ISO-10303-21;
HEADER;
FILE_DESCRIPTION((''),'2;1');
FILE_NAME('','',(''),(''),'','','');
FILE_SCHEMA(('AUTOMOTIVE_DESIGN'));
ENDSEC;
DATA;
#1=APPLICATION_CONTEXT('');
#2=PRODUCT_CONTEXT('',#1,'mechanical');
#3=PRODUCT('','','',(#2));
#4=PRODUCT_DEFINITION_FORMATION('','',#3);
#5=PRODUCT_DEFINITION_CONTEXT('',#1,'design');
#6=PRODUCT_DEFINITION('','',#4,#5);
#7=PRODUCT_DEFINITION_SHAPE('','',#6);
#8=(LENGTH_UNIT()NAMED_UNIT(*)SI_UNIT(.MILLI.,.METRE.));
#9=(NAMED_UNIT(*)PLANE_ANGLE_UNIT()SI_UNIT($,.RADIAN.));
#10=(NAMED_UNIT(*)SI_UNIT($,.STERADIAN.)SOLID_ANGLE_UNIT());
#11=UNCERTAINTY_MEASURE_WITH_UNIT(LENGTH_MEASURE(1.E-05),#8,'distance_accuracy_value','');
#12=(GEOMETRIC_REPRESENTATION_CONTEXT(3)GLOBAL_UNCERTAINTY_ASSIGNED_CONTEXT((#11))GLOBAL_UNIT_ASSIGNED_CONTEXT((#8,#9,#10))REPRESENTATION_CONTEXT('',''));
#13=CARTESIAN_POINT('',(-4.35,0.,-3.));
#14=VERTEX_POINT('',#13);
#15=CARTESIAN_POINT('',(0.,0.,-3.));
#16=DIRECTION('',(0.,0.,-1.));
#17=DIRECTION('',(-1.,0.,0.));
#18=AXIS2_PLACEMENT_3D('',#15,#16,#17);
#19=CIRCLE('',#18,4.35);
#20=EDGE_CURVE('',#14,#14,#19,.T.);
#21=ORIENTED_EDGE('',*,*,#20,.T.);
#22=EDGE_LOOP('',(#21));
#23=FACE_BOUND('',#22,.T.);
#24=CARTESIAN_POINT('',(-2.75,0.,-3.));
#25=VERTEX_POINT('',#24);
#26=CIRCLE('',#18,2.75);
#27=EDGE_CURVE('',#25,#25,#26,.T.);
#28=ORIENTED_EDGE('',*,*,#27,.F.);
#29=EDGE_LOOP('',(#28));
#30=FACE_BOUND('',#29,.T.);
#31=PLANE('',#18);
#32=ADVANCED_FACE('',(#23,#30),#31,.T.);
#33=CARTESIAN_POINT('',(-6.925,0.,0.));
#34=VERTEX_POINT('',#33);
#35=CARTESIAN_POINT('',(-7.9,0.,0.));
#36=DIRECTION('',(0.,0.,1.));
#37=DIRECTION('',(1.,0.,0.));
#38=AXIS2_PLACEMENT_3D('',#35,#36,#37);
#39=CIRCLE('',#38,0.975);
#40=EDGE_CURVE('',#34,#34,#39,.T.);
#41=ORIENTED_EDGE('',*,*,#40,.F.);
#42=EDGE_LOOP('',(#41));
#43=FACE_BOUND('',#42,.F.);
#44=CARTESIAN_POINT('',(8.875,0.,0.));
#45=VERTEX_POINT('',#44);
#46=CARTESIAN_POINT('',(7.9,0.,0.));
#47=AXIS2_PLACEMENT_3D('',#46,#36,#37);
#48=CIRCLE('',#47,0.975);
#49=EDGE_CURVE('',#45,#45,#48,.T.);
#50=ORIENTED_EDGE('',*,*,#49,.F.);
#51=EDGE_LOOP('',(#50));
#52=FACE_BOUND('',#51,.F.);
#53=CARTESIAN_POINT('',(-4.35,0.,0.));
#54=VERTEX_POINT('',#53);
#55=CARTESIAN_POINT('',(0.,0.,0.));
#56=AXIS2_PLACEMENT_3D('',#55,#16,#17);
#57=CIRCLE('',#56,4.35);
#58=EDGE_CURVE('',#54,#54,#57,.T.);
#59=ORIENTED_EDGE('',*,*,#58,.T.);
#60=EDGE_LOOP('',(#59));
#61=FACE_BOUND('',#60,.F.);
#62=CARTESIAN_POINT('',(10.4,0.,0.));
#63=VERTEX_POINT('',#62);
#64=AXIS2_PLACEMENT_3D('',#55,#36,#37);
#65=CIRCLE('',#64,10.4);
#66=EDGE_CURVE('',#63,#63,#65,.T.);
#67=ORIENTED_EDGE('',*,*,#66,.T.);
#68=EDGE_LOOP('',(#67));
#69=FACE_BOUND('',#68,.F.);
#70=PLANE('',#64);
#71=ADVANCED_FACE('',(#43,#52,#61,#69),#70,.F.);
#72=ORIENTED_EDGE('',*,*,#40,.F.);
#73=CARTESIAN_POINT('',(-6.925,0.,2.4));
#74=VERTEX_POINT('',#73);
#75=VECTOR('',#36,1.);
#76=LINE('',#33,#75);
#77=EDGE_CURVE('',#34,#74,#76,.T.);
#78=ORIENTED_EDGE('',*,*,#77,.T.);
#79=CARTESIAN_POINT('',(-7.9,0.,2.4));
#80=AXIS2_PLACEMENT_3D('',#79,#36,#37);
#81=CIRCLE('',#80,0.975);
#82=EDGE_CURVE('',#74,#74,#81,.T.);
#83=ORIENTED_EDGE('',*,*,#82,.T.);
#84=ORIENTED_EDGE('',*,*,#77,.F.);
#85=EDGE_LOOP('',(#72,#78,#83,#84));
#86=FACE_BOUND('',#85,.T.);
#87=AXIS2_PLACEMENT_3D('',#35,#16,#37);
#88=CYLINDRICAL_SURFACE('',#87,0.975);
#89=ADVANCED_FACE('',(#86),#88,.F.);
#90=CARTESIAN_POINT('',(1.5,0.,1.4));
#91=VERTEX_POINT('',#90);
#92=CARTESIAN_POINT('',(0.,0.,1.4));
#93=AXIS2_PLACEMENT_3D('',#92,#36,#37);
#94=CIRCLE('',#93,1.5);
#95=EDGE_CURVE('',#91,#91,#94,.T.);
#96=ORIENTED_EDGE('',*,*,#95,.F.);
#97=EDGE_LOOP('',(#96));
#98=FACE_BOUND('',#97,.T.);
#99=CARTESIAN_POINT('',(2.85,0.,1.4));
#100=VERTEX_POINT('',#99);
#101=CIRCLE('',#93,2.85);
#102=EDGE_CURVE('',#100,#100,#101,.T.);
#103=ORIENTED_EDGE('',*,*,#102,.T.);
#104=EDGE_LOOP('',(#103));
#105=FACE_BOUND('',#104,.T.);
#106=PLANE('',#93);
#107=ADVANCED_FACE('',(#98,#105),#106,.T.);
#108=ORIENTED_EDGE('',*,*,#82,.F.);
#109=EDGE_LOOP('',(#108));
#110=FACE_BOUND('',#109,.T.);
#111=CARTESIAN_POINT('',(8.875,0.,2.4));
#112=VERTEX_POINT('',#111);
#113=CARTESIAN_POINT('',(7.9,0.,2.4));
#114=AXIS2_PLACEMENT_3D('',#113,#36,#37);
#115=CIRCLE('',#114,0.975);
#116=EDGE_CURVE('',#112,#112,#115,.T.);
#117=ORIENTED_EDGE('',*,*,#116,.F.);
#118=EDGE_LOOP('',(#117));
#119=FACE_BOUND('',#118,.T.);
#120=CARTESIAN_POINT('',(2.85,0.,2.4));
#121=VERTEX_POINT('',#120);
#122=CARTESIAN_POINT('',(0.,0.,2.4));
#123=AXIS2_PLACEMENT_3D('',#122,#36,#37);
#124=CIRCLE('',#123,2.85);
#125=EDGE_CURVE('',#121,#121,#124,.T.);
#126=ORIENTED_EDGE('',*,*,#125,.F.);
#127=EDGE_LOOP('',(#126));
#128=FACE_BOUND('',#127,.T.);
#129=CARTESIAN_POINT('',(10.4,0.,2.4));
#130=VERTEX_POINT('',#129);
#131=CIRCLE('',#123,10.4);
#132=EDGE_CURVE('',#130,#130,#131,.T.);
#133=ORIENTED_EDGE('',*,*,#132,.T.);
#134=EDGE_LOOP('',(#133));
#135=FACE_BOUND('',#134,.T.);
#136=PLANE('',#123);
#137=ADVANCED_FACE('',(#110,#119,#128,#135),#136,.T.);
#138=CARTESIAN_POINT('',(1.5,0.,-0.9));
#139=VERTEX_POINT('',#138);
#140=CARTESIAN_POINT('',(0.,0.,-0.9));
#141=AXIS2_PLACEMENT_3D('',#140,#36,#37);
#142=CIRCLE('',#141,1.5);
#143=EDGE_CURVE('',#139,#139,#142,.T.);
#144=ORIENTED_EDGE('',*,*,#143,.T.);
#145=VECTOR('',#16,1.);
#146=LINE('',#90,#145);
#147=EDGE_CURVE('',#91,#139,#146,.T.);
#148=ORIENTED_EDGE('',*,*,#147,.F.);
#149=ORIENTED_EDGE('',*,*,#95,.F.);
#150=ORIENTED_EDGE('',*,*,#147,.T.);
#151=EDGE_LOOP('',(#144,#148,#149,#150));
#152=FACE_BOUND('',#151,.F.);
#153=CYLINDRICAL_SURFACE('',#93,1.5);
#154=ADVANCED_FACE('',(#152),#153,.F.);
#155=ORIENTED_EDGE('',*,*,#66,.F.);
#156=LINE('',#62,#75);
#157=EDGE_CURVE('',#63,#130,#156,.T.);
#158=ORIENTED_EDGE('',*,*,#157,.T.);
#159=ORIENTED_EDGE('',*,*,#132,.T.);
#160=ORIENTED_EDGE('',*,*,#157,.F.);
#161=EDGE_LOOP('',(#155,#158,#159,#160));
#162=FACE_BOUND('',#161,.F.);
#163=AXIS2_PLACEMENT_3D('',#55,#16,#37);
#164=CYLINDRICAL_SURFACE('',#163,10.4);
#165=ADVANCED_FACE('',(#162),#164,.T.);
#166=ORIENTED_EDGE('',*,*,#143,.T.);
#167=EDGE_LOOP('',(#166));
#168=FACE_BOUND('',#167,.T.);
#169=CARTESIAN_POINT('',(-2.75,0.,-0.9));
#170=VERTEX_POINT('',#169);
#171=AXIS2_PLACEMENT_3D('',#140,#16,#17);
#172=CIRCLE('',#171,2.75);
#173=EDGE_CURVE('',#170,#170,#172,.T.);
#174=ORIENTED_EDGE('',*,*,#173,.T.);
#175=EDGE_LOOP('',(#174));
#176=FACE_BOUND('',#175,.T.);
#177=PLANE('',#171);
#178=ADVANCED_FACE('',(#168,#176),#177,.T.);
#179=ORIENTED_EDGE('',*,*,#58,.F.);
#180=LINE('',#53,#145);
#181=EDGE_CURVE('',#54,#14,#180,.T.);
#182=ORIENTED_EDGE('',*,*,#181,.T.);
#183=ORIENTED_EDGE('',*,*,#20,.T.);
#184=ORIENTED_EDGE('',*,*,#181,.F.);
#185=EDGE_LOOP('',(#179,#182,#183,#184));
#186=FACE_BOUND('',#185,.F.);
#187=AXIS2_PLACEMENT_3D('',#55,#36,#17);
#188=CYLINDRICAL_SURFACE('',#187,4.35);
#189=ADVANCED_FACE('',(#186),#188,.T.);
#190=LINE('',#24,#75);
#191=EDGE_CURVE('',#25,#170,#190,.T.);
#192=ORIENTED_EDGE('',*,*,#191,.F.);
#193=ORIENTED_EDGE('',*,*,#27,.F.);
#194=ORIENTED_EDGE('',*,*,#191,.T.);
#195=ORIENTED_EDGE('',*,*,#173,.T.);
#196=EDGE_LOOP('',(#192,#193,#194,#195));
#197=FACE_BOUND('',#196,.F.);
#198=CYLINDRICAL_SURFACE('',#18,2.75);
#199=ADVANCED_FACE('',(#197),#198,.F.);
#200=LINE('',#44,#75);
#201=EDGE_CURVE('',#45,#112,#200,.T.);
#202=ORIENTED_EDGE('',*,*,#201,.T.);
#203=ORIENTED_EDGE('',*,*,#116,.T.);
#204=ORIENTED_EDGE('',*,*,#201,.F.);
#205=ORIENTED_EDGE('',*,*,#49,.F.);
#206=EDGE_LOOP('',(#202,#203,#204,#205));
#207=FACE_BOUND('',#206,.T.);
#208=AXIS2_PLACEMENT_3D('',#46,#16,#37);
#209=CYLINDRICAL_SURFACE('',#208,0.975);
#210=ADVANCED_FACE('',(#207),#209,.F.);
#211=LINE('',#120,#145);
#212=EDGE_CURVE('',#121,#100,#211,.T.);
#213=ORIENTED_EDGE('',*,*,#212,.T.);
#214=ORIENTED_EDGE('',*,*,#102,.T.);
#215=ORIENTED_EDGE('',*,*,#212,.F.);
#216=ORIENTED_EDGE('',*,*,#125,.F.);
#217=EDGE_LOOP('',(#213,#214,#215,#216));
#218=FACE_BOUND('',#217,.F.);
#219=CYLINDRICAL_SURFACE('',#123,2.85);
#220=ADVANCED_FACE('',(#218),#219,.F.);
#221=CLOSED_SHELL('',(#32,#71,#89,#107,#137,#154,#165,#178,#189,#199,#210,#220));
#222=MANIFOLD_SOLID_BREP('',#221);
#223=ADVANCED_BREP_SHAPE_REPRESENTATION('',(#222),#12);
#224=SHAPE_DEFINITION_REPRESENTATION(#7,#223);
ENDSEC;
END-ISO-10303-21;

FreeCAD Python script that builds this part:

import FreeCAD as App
import Part
import Sketcher

doc = App.newDocument("Part")
body = doc.addObject("PartDesign::Body", "Body")

# Sketch on XY plane
sketch1 = doc.addObject("Sketcher::SketchObject", "Sketch")
body.addObject(sketch1)
sketch1.AttachmentSupport = (doc.XY_Plane, [""])
sketch1.MapMode = "FlatFace"
sketch1.addGeometry(Part.Circle(App.Vector(0, 0, 0), App.Vector(0, 0, 1), 10.4), False)
sketch1.addGeometry(Part.Circle(App.Vector(-7.9, 0, 0), App.Vector(0, 0, 1), 1), False)
sketch1.addGeometry(Part.Circle(App.Vector(7.9, 0, 0), App.Vector(0, 0, 1), 1), False)
sketch1.addConstraint(Sketcher.Constraint("Coincident", 0, 3, -1, 1))
sketch1.addConstraint(Sketcher.Constraint("Equal", 1, 2))
sketch1.addConstraint(Sketcher.Constraint("Symmetric", 1, 3, 2, 3, -1, 1))
sketch1.addConstraint(Sketcher.Constraint("PointOnObject", 1, 3, -1))
sketch1.addConstraint(Sketcher.Constraint("Diameter", 0, 20.8))
sketch1.addConstraint(Sketcher.Constraint("Diameter", 1, 1.95))
sketch1.addConstraint(Sketcher.Constraint("DistanceX", 1, 3, -1, 1, 7.9))
pad1 = doc.addObject("PartDesign::Pad", "Pad")
body.addObject(pad1)
pad1.Profile = sketch1
pad1.Length = 2.4

# Sketch on XY plane
sketch2 = doc.addObject("Sketcher::SketchObject", "Sketch001")
body.addObject(sketch2)
sketch2.AttachmentSupport = (doc.XY_Plane, [""])
sketch2.MapMode = "FlatFace"
sketch2.addGeometry(Part.Circle(App.Vector(0, 0, 0), App.Vector(0, 0, 1), 4.3), False)
sketch2.addConstraint(Sketcher.Constraint("Coincident", 0, 3, -1, 1))
sketch2.addConstraint(Sketcher.Constraint("Diameter", 0, 8.7))
pad2 = doc.addObject("PartDesign::Pad", "Pad001")
body.addObject(pad2)
pad2.Profile = sketch2
pad2.Length = 3
pad2.Reversed = True

# Sketch on XY plane
sketch3 = doc.addObject("Sketcher::SketchObject", "Sketch002")
body.addObject(sketch3)
sketch3.AttachmentSupport = (doc.XY_Plane, [""])
sketch3.MapMode = "FlatFace"
sketch3.AttachmentOffset = App.Placement(App.Vector(0, 0, -3), App.Rotation())
sketch3.addGeometry(Part.Circle(App.Vector(0, 0, 0), App.Vector(0, 0, 1), 2.8), False)
sketch3.addConstraint(Sketcher.Constraint("Coincident", 0, 3, -1, 1))
sketch3.addConstraint(Sketcher.Constraint("Diameter", 0, 5.5))
pocket1 = doc.addObject("PartDesign::Pocket", "Pocket")
body.addObject(pocket1)
pocket1.Profile = sketch3
pocket1.Length = 2.1
pocket1.Reversed = True

# Sketch on XY plane
sketch4 = doc.addObject("Sketcher::SketchObject", "Sketch003")
body.addObject(sketch4)
sketch4.AttachmentSupport = (doc.XY_Plane, [""])
sketch4.MapMode = "FlatFace"
sketch4.AttachmentOffset = App.Placement(App.Vector(0, 0, 2.4), App.Rotation())
sketch4.addGeometry(Part.Circle(App.Vector(0, 0, 0), App.Vector(0, 0, 1), 2.9), False)
sketch4.addConstraint(Sketcher.Constraint("Coincident", 0, 3, -1, 1))
sketch4.addConstraint(Sketcher.Constraint("Diameter", 0, 5.7))
pocket2 = doc.addObject("PartDesign::Pocket", "Pocket001")
body.addObject(pocket2)
pocket2.Profile = sketch4
pocket2.Length = 1

# Sketch on XY plane
sketch5 = doc.addObject("Sketcher::SketchObject", "Sketch004")
body.addObject(sketch5)
sketch5.AttachmentSupport = (doc.XY_Plane, [""])
sketch5.MapMode = "FlatFace"
sketch5.AttachmentOffset = App.Placement(App.Vector(0, 0, 1.4), App.Rotation())
sketch5.addGeometry(Part.Circle(App.Vector(0, 0, 0), App.Vector(0, 0, 1), 1.5), False)
sketch5.addConstraint(Sketcher.Constraint("Coincident", 0, 3, -1, 1))
sketch5.addConstraint(Sketcher.Constraint("Diameter", 0, 3.0))
pocket3 = doc.addObject("PartDesign::Pocket", "Pocket002")
body.addObject(pocket3)
pocket3.Profile = sketch5
pocket3.Type = "ThroughAll"

doc.recompute()
